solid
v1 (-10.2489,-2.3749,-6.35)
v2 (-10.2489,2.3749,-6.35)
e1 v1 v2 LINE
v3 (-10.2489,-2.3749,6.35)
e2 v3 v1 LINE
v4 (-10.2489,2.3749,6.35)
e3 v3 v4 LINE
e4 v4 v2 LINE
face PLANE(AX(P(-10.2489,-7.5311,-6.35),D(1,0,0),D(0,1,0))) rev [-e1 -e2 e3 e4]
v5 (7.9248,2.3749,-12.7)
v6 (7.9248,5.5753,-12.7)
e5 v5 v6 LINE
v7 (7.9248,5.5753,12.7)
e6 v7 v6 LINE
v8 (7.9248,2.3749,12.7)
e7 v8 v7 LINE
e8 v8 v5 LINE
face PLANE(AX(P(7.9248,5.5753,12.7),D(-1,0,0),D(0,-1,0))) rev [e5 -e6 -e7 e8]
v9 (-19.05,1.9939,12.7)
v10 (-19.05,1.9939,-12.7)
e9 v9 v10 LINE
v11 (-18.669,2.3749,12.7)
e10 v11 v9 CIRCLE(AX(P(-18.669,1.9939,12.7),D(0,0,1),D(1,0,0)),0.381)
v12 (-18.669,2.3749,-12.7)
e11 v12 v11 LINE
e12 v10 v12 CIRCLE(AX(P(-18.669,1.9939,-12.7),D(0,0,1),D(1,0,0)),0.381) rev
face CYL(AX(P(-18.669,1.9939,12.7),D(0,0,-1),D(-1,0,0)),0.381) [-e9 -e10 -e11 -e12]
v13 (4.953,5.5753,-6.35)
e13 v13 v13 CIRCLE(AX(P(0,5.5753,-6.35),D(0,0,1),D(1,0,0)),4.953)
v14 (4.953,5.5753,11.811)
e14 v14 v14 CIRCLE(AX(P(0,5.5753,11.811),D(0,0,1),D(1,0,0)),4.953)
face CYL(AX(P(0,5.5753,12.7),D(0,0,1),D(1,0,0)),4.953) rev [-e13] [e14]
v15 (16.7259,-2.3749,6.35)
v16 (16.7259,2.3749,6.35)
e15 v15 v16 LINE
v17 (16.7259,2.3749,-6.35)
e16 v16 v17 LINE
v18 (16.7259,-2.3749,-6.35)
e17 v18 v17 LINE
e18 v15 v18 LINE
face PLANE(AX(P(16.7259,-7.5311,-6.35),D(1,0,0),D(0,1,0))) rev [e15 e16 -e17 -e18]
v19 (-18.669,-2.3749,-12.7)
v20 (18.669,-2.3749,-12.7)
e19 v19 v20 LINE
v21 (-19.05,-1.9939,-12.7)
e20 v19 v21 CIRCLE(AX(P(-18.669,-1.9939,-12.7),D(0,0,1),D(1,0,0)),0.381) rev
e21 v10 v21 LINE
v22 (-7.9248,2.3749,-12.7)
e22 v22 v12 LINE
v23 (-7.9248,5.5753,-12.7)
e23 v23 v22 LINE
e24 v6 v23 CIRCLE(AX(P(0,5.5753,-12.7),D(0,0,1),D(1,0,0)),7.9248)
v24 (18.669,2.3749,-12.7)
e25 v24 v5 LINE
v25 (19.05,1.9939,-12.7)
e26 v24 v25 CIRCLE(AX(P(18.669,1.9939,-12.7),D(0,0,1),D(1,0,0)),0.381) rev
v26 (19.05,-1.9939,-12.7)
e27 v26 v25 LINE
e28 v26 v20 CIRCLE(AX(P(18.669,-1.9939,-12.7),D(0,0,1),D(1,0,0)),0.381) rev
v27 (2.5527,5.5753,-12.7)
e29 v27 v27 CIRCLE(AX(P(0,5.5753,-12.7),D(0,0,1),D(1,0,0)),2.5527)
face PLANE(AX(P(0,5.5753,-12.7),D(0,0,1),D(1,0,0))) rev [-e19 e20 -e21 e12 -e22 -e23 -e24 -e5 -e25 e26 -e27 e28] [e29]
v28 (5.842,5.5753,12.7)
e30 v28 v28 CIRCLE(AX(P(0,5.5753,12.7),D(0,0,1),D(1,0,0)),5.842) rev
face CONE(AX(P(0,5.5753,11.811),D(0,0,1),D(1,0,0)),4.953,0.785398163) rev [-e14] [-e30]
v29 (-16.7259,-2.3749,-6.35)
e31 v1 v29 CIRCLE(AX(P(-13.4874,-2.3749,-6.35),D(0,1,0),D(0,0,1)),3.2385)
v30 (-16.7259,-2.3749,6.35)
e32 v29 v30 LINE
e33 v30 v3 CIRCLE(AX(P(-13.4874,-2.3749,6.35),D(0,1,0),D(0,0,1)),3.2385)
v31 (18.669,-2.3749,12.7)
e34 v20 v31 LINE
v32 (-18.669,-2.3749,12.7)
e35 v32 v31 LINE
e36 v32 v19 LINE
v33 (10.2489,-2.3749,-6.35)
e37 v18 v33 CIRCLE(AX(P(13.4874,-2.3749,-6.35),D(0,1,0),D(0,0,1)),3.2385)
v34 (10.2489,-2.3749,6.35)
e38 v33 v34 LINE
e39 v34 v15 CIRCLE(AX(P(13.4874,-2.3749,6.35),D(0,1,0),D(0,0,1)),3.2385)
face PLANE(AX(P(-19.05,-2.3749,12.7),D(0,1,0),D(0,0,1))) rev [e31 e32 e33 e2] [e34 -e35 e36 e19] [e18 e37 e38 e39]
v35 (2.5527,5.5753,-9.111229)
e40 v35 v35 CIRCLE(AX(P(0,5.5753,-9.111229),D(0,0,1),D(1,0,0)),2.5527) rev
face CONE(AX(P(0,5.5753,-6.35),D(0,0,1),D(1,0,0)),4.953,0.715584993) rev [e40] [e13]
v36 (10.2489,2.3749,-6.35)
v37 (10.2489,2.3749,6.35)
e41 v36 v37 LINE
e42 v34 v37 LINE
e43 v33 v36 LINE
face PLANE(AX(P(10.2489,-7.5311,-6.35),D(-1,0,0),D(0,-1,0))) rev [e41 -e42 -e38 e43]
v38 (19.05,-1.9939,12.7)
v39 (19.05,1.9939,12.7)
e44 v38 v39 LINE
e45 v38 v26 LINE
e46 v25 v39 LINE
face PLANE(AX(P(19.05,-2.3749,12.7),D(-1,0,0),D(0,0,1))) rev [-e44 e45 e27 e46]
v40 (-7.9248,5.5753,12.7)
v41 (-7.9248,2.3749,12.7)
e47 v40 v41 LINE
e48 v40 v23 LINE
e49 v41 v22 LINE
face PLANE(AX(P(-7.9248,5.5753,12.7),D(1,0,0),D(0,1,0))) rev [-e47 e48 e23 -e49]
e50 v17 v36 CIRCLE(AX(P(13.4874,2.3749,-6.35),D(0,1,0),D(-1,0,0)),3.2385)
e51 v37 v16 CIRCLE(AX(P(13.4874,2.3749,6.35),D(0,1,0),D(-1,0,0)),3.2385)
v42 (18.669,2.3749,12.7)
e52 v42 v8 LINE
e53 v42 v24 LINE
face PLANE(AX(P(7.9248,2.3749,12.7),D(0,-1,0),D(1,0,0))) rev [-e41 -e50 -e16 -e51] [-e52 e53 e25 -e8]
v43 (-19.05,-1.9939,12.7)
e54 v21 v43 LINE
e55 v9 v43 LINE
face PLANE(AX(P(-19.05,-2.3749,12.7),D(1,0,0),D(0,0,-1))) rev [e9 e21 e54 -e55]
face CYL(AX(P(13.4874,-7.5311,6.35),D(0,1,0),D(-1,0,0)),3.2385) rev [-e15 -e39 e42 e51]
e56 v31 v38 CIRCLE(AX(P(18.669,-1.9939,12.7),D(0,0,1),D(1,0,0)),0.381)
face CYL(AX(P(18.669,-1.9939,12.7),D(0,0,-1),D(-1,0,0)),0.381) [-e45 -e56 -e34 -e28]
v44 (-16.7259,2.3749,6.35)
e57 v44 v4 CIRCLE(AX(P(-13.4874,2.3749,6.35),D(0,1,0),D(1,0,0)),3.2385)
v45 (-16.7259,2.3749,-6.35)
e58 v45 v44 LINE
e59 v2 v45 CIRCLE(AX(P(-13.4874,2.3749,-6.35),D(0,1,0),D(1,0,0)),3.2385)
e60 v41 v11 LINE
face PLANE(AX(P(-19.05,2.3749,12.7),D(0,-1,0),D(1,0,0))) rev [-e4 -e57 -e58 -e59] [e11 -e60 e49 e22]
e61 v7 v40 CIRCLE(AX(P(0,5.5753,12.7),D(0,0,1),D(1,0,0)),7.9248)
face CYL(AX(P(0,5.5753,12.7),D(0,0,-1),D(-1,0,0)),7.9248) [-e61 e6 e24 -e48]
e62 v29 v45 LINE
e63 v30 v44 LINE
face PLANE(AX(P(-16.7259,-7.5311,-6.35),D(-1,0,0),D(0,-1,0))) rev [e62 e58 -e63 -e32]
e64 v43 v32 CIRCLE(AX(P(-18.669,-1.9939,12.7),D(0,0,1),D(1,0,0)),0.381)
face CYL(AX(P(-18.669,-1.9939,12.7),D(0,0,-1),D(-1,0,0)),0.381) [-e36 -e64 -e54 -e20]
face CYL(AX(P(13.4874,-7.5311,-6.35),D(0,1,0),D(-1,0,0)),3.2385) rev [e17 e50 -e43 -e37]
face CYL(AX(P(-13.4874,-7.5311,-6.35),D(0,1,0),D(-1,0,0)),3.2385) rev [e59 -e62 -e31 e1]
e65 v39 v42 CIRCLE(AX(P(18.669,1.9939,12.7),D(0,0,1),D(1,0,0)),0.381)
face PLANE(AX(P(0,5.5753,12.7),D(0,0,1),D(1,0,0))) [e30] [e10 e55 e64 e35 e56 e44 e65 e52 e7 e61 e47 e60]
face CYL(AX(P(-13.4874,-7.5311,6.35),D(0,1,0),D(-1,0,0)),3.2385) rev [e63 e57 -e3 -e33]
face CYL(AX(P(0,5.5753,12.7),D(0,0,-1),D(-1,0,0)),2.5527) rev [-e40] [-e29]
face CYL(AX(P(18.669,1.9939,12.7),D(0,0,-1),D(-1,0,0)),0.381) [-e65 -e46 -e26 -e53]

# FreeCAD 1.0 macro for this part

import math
import FreeCAD as App
import Part
import Sketcher
Q = App.Units.Quantity


def edges_at(feature, points):
    """Names of the edges that pass closest to the given points."""
    edges = feature.Shape.Edges
    near = lambda p: min(range(len(edges)), key=lambda i: edges[i].distToShape(Part.Vertex(*p))[0])
    return sorted({f"Edge{near(p) + 1}" for p in points})

doc = App.newDocument("Part")
body = doc.addObject("PartDesign::Body", "Body")

sketch1 = body.newObject("Sketcher::SketchObject", "Sketch")
sketch1.AttachmentSupport = (doc.getObject("XY_Plane"), [""])
sketch1.MapMode = "FlatFace"
sketch1.addGeometry([
    Part.LineSegment(App.Vector(-19.1, -2.4, 0), App.Vector(19.1, -2.4, 0)),
    Part.LineSegment(App.Vector(19.1, -2.4, 0), App.Vector(19.1, 2.4, 0)),
    Part.LineSegment(App.Vector(19.1, 2.4, 0), App.Vector(7.9, 2.4, 0)),
    Part.LineSegment(App.Vector(7.9, 2.4, 0), App.Vector(7.9, 5.6, 0)),
    Part.ArcOfCircle(Part.Circle(App.Vector(0, 5.6, 0), App.Vector(0, 0, 1), 7.9), math.radians(0), math.radians(180)),
    Part.LineSegment(App.Vector(-7.9, 5.6, 0), App.Vector(-7.9, 2.4, 0)),
    Part.LineSegment(App.Vector(-7.9, 2.4, 0), App.Vector(-19.1, 2.4, 0)),
    Part.LineSegment(App.Vector(-19.1, 2.4, 0), App.Vector(-19.1, -2.4, 0)),
    Part.Circle(App.Vector(0, 5.6, 0), App.Vector(0, 0, 1), 2.6),
], False)
sketch1.addConstraint([
    Sketcher.Constraint("Coincident", 0, 2, 1, 1),
    Sketcher.Constraint("Coincident", 1, 2, 2, 1),
    Sketcher.Constraint("Coincident", 2, 2, 3, 1),
    Sketcher.Constraint("Tangent", 3, 2, 4, 1),
    Sketcher.Constraint("Tangent", 4, 2, 5, 1),
    Sketcher.Constraint("Coincident", 5, 2, 6, 1),
    Sketcher.Constraint("Coincident", 6, 2, 7, 1),
    Sketcher.Constraint("Coincident", 7, 2, 0, 1),
    Sketcher.Constraint("Horizontal", 0),
    Sketcher.Constraint("Vertical", 1),
    Sketcher.Constraint("Horizontal", 2),
    Sketcher.Constraint("Vertical", 3),
    Sketcher.Constraint("Vertical", 5),
    Sketcher.Constraint("Horizontal", 6),
    Sketcher.Constraint("Vertical", 7),
    Sketcher.Constraint("Coincident", 8, 3, 4, 3),
    Sketcher.Constraint("Symmetric", 0, 2, 6, 2, -1, 1),
    Sketcher.Constraint("Symmetric", 2, 2, 5, 2, -2),
    Sketcher.Constraint("Diameter", 8, Q("0.201 in")),
    Sketcher.Constraint("DistanceX", 0, 1, 0, 2, Q("1.5 in")),
    Sketcher.Constraint("Radius", 4, Q("0.312 in")),
    Sketcher.Constraint("DistanceY", 1, 1, 1, 2, Q("0.187 in")),
    Sketcher.Constraint("DistanceY", 3, 1, 3, 2, Q("0.126 in")),
])
pad1 = body.newObject("PartDesign::Pad", "Pad")
pad1.Profile = sketch1
pad1.Length = Q("1 in")
pad1.Midplane = True
doc.recompute()

fillet = body.newObject("PartDesign::Fillet", "Fillet")
fillet.Base = (pad1, edges_at(pad1, [
    (19.05, 2.375, 0),
    (19.05, -2.375, 0),
    (-19.05, -2.375, 0),
    (-19.05, 2.375, 0),
]))
fillet.Radius = Q("0.015 in")

sketch2 = body.newObject("Sketcher::SketchObject", "Sketch001")
sketch2.AttachmentSupport = (doc.getObject("XY_Plane"), [""])
sketch2.MapMode = "FlatFace"
sketch2.AttachmentOffset = App.Placement(App.Vector(0, 0, 0.5 * 25.4), App.Rotation())
sketch2.addGeometry(Part.Circle(App.Vector(0, 5.6, 0), App.Vector(0, 0, 1), 5), False)
sketch2.addConstraint([
    Sketcher.Constraint("PointOnObject", 0, 3, -2),
    Sketcher.Constraint("Diameter", 0, Q("0.39 in")),
    Sketcher.Constraint("DistanceY", -1, 1, 0, 3, Q("0.2195 in")),
])
doc.recompute()
hole = body.newObject("PartDesign::Hole", "Hole")
hole.Profile = sketch2
hole.ThreadType = "None"
hole.Diameter = Q("0.39 in")
hole.DepthType = "Dimension"
hole.Depth = Q("0.75 in")
hole.DrillPoint = "Angled"
hole.DrillPointAngle = 82
doc.recompute()

chamfer = body.newObject("PartDesign::Chamfer", "Chamfer")
chamfer.Base = (hole, edges_at(hole, [(4.953, 5.575, 12.7)]))
chamfer.Size = Q("0.035 in")

sketch3 = body.newObject("Sketcher::SketchObject", "Sketch002")
sketch3.AttachmentSupport = (doc.getObject("XZ_Plane"), [""])
sketch3.MapMode = "FlatFace"
sketch3.AttachmentOffset = App.Placement(App.Vector(0, 0, -0.0935 * 25.4), App.Rotation())
sketch3.addGeometry([
    Part.LineSegment(App.Vector(16.7, 6.3, 0), App.Vector(16.7, -6.3, 0)),
    Part.ArcOfCircle(Part.Circle(App.Vector(13.5, -6.3, 0), App.Vector(0, 0, 1), 3.2), math.radians(180), math.radians(360)),
    Part.LineSegment(App.Vector(10.2, -6.3, 0), App.Vector(10.2, 6.3, 0)),
    Part.ArcOfCircle(Part.Circle(App.Vector(13.5, 6.3, 0), App.Vector(0, 0, 1), 3.2), math.radians(0), math.radians(180)),
    Part.LineSegment(App.Vector(-16.7, -6.3, 0), App.Vector(-16.7, 6.3, 0)),
    Part.ArcOfCircle(Part.Circle(App.Vector(-13.5, 6.3, 0), App.Vector(0, 0, 1), 3.2), math.radians(0), math.radians(180)),
    Part.LineSegment(App.Vector(-10.2, 6.3, 0), App.Vector(-10.2, -6.3, 0)),
    Part.ArcOfCircle(Part.Circle(App.Vector(-13.5, -6.3, 0), App.Vector(0, 0, 1), 3.2), math.radians(180), math.radians(360)),
], False)
sketch3.addConstraint([
    Sketcher.Constraint("Tangent", 0, 2, 1, 2),
    Sketcher.Constraint("Tangent", 1, 1, 2, 1),
    Sketcher.Constraint("Tangent", 2, 2, 3, 2),
    Sketcher.Constraint("Tangent", 3, 1, 0, 1),
    Sketcher.Constraint("Tangent", 4, 2, 5, 2),
    Sketcher.Constraint("Tangent", 5, 1, 6, 1),
    Sketcher.Constraint("Tangent", 6, 2, 7, 2),
    Sketcher.Constraint("Tangent", 7, 1, 4, 1),
    Sketcher.Constraint("Vertical", 0),
    Sketcher.Constraint("Vertical", 2),
    Sketcher.Constraint("Vertical", 4),
    Sketcher.Constraint("Vertical", 6),
    Sketcher.Constraint("Equal", 3, 5),
    Sketcher.Constraint("Symmetric", 1, 3, 5, 3, -1, 1),
    Sketcher.Constraint("Horizontal", 3, 3, 5, 3),
    Sketcher.Constraint("Horizontal", 1, 3, 7, 3),
    Sketcher.Constraint("DistanceY", 0, 2, 0, 1, Q("0.5 in")),
    Sketcher.Constraint("Radius", 1, Q("0.1275 in")),
    Sketcher.Constraint("DistanceX", -1, 1, 1, 3, Q("0.531 in")),
])
pocket1 = body.newObject("PartDesign::Pocket", "Pocket")
pocket1.Profile = sketch3
pocket1.Length = Q("0.39 in")
pocket1.Reversed = True

doc.recompute()
